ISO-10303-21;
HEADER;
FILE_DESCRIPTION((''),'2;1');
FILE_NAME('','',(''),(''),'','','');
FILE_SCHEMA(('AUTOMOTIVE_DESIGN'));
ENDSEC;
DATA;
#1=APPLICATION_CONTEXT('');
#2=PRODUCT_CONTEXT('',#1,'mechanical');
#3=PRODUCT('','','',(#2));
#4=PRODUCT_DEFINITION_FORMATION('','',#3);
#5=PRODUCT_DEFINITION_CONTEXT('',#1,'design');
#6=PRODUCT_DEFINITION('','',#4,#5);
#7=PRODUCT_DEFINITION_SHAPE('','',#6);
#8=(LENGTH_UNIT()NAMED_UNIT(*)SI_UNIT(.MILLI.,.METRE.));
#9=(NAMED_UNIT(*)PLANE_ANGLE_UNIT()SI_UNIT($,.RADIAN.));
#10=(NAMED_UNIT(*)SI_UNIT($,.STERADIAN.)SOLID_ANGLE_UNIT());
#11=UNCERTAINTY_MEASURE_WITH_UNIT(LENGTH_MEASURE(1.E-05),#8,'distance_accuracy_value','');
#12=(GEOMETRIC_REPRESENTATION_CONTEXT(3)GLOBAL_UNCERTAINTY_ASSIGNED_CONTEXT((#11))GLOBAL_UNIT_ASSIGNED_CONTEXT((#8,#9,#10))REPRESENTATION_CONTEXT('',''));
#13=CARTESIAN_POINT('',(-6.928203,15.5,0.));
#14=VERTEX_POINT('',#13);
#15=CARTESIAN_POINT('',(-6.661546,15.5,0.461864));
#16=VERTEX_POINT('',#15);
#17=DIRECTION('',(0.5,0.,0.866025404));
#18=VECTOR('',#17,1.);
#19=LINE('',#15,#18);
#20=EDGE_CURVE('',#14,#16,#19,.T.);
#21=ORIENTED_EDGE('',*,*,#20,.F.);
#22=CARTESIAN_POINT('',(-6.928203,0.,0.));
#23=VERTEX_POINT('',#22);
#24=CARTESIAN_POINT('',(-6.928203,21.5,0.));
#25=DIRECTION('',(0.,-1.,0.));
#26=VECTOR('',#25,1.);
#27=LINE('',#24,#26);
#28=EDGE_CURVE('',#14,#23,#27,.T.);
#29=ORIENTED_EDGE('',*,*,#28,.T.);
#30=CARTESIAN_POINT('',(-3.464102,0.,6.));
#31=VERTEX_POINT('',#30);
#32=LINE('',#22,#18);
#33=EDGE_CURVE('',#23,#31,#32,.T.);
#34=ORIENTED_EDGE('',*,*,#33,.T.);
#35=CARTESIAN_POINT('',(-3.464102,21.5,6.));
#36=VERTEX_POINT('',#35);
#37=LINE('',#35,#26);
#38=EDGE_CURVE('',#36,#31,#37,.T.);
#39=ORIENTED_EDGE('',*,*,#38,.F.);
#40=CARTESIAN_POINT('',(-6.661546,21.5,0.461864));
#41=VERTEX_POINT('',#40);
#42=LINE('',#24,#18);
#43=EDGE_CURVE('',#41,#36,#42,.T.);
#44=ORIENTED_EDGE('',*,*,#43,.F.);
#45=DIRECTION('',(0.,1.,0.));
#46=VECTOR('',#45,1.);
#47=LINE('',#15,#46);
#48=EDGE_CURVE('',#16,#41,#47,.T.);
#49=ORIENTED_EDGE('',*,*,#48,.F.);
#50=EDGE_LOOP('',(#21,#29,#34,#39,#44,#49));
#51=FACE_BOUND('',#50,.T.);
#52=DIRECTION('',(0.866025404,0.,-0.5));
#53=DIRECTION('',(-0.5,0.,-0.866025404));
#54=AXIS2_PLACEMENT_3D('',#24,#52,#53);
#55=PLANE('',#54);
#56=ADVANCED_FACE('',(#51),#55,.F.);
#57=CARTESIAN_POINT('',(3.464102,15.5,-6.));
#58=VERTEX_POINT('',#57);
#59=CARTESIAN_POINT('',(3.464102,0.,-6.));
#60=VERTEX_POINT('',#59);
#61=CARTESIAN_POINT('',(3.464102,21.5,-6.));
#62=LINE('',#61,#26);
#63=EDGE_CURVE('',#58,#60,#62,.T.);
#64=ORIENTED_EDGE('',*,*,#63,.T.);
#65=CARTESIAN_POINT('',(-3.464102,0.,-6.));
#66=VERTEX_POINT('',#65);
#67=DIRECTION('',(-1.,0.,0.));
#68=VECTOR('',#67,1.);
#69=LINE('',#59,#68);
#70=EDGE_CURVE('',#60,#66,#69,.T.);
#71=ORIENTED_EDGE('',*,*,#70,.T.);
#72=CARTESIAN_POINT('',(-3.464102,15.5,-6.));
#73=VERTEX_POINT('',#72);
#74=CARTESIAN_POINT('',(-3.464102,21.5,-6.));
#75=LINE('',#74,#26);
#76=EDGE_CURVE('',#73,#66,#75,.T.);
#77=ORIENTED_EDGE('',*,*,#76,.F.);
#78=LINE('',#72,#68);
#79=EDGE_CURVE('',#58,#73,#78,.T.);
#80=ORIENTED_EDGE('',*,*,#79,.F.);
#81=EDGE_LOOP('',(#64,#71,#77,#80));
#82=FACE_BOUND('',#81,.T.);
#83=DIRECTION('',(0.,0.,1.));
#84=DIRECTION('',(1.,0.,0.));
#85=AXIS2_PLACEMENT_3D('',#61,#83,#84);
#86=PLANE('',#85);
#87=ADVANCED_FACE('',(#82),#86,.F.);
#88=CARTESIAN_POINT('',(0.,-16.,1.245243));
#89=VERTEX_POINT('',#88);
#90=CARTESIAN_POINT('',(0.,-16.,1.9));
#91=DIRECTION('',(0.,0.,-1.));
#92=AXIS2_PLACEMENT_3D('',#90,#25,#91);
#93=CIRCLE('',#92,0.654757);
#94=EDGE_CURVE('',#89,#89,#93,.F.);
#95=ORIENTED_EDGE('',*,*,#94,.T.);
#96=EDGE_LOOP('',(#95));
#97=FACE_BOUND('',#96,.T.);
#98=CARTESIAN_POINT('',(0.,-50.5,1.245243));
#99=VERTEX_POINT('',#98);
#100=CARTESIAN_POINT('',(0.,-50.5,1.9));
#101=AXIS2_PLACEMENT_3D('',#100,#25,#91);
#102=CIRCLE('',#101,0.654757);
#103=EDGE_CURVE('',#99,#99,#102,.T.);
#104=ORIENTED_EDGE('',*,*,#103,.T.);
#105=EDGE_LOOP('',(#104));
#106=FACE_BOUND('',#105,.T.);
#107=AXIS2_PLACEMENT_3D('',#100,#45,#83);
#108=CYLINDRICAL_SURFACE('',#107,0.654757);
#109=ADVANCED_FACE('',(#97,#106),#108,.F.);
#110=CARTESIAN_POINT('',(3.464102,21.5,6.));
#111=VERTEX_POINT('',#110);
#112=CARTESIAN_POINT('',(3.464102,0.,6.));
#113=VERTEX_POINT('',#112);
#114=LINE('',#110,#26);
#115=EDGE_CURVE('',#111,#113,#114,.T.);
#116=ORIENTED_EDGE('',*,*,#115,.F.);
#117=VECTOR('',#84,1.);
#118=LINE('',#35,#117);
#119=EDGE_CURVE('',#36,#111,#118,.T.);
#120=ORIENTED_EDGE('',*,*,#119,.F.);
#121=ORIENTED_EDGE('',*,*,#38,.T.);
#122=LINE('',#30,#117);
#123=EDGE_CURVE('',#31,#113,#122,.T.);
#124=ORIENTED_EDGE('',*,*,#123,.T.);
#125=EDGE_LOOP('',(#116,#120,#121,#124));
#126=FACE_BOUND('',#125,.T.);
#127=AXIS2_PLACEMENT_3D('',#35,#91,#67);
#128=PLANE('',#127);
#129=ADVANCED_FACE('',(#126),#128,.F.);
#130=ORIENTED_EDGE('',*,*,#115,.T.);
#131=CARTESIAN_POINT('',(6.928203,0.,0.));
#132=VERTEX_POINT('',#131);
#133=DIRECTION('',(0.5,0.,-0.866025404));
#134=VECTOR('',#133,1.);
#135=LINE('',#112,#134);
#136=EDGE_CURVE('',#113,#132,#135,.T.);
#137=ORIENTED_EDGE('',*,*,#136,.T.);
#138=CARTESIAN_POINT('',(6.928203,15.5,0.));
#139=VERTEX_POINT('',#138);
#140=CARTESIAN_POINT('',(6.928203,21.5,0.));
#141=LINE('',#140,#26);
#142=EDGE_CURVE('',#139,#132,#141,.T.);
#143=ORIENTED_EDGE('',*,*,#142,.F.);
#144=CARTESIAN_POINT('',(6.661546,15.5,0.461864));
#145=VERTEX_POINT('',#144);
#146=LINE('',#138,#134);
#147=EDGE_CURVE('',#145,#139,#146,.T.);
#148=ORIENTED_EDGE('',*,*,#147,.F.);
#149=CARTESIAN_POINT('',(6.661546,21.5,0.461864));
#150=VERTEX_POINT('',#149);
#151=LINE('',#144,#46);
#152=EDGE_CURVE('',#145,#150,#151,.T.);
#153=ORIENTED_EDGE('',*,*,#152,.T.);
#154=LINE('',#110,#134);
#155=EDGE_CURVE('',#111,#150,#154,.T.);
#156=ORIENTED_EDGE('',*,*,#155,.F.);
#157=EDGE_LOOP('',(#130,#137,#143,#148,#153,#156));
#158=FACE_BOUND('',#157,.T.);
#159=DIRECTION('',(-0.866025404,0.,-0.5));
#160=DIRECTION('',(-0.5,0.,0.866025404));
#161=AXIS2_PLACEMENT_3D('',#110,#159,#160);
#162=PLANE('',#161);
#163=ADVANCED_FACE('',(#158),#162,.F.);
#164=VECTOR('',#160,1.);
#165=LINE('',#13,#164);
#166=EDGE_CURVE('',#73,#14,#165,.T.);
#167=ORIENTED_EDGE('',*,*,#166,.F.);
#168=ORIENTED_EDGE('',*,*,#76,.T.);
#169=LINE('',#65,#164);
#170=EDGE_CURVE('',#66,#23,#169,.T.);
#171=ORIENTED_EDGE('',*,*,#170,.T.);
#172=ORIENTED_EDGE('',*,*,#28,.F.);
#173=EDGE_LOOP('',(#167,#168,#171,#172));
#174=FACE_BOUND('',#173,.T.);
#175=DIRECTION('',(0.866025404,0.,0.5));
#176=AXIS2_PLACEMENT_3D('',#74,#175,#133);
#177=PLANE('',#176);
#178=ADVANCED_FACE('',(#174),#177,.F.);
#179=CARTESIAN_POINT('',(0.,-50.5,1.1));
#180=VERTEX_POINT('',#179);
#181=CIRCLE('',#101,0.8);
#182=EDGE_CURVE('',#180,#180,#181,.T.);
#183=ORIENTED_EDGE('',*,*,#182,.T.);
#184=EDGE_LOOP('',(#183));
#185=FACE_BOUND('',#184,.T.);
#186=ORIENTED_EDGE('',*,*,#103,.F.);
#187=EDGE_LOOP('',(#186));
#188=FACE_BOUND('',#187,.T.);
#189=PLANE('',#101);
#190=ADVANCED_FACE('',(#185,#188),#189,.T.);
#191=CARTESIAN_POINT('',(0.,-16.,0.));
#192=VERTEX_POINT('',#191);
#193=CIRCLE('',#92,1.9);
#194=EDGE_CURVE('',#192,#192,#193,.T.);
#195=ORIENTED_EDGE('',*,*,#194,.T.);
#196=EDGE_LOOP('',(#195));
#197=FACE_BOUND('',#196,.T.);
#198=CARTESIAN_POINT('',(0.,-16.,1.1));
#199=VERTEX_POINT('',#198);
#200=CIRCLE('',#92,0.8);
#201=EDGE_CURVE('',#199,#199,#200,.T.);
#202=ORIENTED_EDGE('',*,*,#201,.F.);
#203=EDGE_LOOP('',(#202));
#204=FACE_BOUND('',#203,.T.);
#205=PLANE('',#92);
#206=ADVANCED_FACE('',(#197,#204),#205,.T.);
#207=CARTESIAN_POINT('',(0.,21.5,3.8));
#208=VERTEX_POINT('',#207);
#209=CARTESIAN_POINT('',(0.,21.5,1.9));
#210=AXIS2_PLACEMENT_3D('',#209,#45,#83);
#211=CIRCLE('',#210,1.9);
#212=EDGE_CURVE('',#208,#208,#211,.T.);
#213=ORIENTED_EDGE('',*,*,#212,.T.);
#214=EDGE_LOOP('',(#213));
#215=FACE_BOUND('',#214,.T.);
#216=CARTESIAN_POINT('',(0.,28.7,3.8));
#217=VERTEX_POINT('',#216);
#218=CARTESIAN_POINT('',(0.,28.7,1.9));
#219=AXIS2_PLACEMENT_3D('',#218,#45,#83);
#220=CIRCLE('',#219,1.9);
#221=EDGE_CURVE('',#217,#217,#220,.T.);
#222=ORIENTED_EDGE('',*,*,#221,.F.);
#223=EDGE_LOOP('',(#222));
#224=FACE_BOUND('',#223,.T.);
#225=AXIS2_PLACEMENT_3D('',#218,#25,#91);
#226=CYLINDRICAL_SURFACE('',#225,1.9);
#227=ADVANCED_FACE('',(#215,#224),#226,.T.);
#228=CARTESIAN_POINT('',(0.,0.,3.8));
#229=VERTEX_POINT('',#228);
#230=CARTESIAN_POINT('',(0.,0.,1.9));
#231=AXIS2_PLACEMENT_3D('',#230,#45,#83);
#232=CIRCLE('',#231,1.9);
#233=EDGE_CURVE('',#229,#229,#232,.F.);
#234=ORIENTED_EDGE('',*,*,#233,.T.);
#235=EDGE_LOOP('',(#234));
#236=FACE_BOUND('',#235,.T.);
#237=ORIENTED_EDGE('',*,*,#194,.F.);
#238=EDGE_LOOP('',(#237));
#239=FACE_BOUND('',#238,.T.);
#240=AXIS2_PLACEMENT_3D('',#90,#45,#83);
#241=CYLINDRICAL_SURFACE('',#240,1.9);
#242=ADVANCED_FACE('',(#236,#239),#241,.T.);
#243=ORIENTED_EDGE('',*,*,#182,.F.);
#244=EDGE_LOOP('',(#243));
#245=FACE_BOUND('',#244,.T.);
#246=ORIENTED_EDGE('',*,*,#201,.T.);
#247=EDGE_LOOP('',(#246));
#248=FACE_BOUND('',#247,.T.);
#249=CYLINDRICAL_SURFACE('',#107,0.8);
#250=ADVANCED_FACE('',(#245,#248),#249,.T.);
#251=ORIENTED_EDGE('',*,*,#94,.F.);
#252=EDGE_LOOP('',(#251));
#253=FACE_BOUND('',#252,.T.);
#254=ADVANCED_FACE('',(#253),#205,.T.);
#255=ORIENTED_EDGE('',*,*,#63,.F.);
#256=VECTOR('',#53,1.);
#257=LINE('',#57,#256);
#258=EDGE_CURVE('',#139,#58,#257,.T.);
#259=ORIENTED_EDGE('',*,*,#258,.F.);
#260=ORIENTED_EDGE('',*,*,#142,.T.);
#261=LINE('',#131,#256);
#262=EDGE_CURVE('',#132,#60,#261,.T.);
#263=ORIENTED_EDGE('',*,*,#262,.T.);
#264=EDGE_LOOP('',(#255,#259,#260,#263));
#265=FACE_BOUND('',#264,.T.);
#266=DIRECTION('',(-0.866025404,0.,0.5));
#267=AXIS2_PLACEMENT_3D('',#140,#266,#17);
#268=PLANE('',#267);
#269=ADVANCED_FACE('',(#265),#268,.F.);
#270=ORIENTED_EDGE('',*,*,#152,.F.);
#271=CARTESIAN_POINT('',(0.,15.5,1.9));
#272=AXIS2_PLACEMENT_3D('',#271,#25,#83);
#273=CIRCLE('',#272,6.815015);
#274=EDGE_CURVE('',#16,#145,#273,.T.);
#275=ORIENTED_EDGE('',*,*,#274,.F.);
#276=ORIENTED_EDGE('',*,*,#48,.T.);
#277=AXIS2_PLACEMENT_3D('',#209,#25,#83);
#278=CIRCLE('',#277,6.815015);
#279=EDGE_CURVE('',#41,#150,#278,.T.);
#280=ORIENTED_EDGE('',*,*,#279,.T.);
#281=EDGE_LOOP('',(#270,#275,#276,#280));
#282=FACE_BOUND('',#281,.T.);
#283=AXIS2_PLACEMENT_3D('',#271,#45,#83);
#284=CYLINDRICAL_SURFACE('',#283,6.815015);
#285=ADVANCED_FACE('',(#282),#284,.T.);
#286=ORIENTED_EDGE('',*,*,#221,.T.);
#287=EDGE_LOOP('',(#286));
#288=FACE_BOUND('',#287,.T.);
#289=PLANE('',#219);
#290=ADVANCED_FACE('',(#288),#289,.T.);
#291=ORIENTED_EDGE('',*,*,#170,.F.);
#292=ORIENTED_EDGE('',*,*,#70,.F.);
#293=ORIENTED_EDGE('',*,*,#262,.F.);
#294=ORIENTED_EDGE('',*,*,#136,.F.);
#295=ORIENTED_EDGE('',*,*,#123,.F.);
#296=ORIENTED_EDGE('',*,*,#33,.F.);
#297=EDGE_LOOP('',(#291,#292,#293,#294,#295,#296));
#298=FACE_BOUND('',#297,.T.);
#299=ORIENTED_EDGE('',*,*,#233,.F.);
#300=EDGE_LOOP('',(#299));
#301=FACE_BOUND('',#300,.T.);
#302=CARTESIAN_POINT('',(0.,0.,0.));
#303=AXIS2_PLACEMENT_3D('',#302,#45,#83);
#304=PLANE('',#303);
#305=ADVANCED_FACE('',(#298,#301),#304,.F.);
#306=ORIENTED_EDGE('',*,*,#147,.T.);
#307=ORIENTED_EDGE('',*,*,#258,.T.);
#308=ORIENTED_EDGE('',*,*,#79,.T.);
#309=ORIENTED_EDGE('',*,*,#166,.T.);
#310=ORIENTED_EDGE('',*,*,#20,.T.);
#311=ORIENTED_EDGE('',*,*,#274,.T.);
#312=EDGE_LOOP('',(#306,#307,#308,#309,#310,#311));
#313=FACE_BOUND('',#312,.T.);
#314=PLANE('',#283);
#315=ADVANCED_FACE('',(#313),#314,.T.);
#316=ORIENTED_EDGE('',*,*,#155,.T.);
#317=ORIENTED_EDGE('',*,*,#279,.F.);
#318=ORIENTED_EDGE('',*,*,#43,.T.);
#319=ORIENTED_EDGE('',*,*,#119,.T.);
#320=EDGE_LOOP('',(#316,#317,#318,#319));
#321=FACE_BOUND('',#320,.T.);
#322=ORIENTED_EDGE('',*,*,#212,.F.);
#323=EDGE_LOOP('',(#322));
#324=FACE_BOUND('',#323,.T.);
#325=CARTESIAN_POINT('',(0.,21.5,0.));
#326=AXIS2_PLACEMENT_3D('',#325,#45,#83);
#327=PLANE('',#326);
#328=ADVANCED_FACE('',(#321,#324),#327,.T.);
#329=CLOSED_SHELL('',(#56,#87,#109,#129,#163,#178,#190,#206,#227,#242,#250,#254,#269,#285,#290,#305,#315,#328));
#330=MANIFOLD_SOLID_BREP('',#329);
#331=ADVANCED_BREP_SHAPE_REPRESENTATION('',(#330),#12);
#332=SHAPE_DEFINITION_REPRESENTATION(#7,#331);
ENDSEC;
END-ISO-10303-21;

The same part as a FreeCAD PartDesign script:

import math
import FreeCAD as App
import Part
import Sketcher

V = App.Vector
Q = App.Units.Quantity


def add_polygon(sketch, points):
    """Adds a closed chain of lines whose ends are joined by coincident constraints."""
    first, n = sketch.GeometryCount, len(points)
    for a, b in zip(points, points[1:] + points[:1]):
        sketch.addGeometry(Part.LineSegment(App.Vector(*a, 0), App.Vector(*b, 0)), False)
    for i in range(n):
        sketch.addConstraint(Sketcher.Constraint("Coincident", first + i, 2, first + (i + 1) % n, 1))

doc = App.newDocument("Part")
body = doc.addObject("PartDesign::Body", "Body")

# Sketch on XZ plane
sketch1 = body.newObject("Sketcher::SketchObject", "Sketch")
sketch1.AttachmentSupport = (doc.getObject("XZ_Plane"), [""])
sketch1.MapMode = "FlatFace"
add_polygon(sketch1, [(-7, 0), (-3, 6), (3, 6), (7, 0), (3, -6), (-3, -6)])  # lines 0-5
sketch1.addConstraint([
    Sketcher.Constraint("Horizontal", 1),
    Sketcher.Constraint("Horizontal", 4),
    Sketcher.Constraint("Symmetric", 0, 2, 3, 2, -1, 1),
    Sketcher.Constraint("Symmetric", 2, 2, 5, 2, -1, 1),
    Sketcher.Constraint("PointOnObject", 2, 2, -1),
    Sketcher.Constraint("Parallel", 2, 5),
    Sketcher.Constraint("Vertical", 1, 2, 3, 2),
    Sketcher.Constraint("Angle", 0, Q("60 deg")),
    Sketcher.Constraint("DistanceY", -1, 1, 0, 2, 6.0),
    Sketcher.Constraint("DistanceX", 0, 2, -1, 1, 3.464102),
])
pad1 = body.newObject("PartDesign::Pad", "Pad")
pad1.Profile = sketch1
pad1.Length = 21.5
pad1.Reversed = True

# Sketch on XZ plane
sketch2 = body.newObject("Sketcher::SketchObject", "Sketch001")
sketch2.AttachmentSupport = (doc.getObject("XZ_Plane"), [""])
sketch2.MapMode = "FlatFace"
sketch2.AttachmentOffset = App.Placement(V(0, 0, -21.5), App.Rotation())
sketch2.addGeometry(Part.Circle(V(0, 1.9, 0), V(0, 0, 1), 1.9), False)
sketch2.addConstraint([
    Sketcher.Constraint("PointOnObject", 0, 3, -2),
    Sketcher.Constraint("Diameter", 0, 3.8),
    Sketcher.Constraint("DistanceY", -1, 1, 0, 3, 1.9),
])
pad2 = body.newObject("PartDesign::Pad", "Pad001")
pad2.Profile = sketch2
pad2.Length = 7.2
pad2.Reversed = True

# Sketch on XZ plane
sketch3 = body.newObject("Sketcher::SketchObject", "Sketch002")
sketch3.AttachmentSupport = (doc.getObject("XZ_Plane"), [""])
sketch3.MapMode = "FlatFace"
sketch3.AttachmentOffset = App.Placement(V(0, 0, -21.5), App.Rotation())
sketch3.addGeometry([
    Part.LineSegment(V(-6.9, 0, 0), V(-6.7, 0.5, 0)),  # 0
    Part.ArcOfCircle(Part.Circle(V(0, 1.9, 0), V(0, 0, 1), 6.8), math.radians(-168), math.radians(-12)),  # 1
    Part.LineSegment(V(6.7, 0.5, 0), V(6.9, 0, 0)),  # 2
    Part.LineSegment(V(6.9, 0, 0), V(3.5, -6, 0)),  # 3
    Part.LineSegment(V(3.5, -6, 0), V(-3.5, -6, 0)),  # 4
    Part.LineSegment(V(-3.5, -6, 0), V(-6.9, 0, 0)),  # 5
], False)
sketch3.addConstraint([
    Sketcher.Constraint("Coincident", 0, 2, 1, 1),
    Sketcher.Constraint("Coincident", 1, 2, 2, 1),
    Sketcher.Constraint("Coincident", 2, 2, 3, 1),
    Sketcher.Constraint("Coincident", 3, 2, 4, 1),
    Sketcher.Constraint("Coincident", 4, 2, 5, 1),
    Sketcher.Constraint("Coincident", 5, 2, 0, 1),
    Sketcher.Constraint("Horizontal", 4),
    Sketcher.Constraint("Symmetric", 2, 2, 5, 2, -1, 1),
    Sketcher.Constraint("Symmetric", 0, 2, 1, 2, -2),
    Sketcher.Constraint("PointOnObject", 2, 2, -1),
    Sketcher.Constraint("Parallel", 0, 3),
    Sketcher.Constraint("Parallel", 2, 5),
    Sketcher.Constraint("Angle", 0, Q("60 deg")),
    Sketcher.Constraint("DistanceY", 3, 2, -1, 1, 6.0),
    Sketcher.Constraint("DistanceY", -1, 1, 1, 3, 1.9),
    Sketcher.Constraint("Radius", 1, 6.815015),
    Sketcher.Constraint("DistanceX", -1, 1, 3, 2, 3.464102),
])
pocket1 = body.newObject("PartDesign::Pocket", "Pocket")
pocket1.Profile = sketch3
pocket1.Length = 6
pocket1.Reversed = True

# Sketch on XZ plane
sketch4 = body.newObject("Sketcher::SketchObject", "Sketch003")
sketch4.AttachmentSupport = (doc.getObject("XZ_Plane"), [""])
sketch4.MapMode = "FlatFace"
sketch4.AttachmentOffset = App.Placement(V(0, 0, 16), App.Rotation())
sketch4.addGeometry(Part.Circle(V(0, 1.9, 0), V(0, 0, 1), 1.9), False)
sketch4.addConstraint([
    Sketcher.Constraint("PointOnObject", 0, 3, -2),
    Sketcher.Constraint("Diameter", 0, 3.8),
    Sketcher.Constraint("DistanceY", -1, 1, 0, 3, 1.9),
])
pad3 = body.newObject("PartDesign::Pad", "Pad002")
pad3.Profile = sketch4
pad3.Length = 16
pad3.Reversed = True

# Sketch on XZ plane
sketch5 = body.newObject("Sketcher::SketchObject", "Sketch004")
sketch5.AttachmentSupport = (doc.getObject("XZ_Plane"), [""])
sketch5.MapMode = "FlatFace"
sketch5.AttachmentOffset = App.Placement(V(0, 0, 16), App.Rotation())
sketch5.addGeometry([
    Part.Circle(V(0, 1.9, 0), V(0, 0, 1), 0.8),
    Part.Circle(V(0, 1.9, 0), V(0, 0, 1), 0.7),
], False)
sketch5.addConstraint([
    Sketcher.Constraint("Coincident", 1, 3, 0, 3),
    Sketcher.Constraint("PointOnObject", 0, 3, -2),
    Sketcher.Constraint("Diameter", 0, 1.6),
    Sketcher.Constraint("DistanceY", -1, 1, 0, 3, 1.9),
    Sketcher.Constraint("Diameter", 1, 1.309514),
])
pad4 = body.newObject("PartDesign::Pad", "Pad003")
pad4.Profile = sketch5
pad4.Length = 34.5

doc.recompute()
